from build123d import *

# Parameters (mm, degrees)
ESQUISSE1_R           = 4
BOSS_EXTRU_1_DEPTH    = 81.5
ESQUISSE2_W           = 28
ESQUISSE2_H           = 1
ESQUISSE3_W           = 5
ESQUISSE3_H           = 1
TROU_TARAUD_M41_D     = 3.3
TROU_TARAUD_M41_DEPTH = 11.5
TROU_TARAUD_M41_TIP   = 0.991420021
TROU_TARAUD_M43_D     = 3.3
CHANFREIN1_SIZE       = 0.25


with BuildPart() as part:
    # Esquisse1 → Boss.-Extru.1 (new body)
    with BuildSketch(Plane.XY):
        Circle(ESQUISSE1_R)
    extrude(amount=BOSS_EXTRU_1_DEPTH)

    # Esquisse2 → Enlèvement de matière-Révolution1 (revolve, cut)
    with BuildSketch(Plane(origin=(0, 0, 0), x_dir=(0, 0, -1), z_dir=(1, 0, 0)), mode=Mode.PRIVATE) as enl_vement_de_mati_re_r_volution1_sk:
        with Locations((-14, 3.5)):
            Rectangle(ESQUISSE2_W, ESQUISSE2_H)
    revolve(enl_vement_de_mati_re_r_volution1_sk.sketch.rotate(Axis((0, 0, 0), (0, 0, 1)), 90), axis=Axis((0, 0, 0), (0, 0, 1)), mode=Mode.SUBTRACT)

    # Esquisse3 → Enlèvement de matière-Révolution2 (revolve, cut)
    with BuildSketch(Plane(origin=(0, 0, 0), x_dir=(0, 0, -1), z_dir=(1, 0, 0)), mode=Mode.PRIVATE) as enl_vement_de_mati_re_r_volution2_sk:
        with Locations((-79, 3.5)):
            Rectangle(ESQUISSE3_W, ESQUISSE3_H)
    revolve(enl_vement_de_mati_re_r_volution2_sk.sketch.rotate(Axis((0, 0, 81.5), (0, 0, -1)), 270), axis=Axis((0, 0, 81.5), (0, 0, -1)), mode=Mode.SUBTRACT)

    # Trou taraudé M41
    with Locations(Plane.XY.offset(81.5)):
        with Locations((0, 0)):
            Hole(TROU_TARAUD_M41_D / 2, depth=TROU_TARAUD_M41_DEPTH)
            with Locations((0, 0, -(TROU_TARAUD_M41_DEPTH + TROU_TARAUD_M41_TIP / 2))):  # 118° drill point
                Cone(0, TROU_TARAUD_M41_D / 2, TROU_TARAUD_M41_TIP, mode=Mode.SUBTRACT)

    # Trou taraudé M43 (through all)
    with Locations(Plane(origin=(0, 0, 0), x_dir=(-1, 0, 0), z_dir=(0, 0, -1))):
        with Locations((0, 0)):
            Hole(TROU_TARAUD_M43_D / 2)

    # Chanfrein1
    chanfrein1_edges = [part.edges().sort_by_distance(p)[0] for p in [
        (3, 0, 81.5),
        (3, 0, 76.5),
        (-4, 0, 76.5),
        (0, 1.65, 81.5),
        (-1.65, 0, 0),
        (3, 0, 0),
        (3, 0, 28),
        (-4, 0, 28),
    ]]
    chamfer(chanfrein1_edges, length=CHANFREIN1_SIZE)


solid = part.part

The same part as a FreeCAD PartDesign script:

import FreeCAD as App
import Part
import Sketcher

V = App.Vector
Q = App.Units.Quantity


def edges_at(feature, points):
    """Names of the edges that pass closest to the given points."""
    edges = feature.Shape.Edges
    near = lambda p: min(range(len(edges)), key=lambda i: edges[i].distToShape(Part.Vertex(*p))[0])
    return sorted({f"Edge{near(p) + 1}" for p in points})


def add_polygon(sketch, points):
    """Adds a closed chain of lines whose ends are joined by coincident constraints."""
    first, n = sketch.GeometryCount, len(points)
    for a, b in zip(points, points[1:] + points[:1]):
        sketch.addGeometry(Part.LineSegment(App.Vector(*a, 0), App.Vector(*b, 0)), False)
    for i in range(n):
        sketch.addConstraint(Sketcher.Constraint("Coincident", first + i, 2, first + (i + 1) % n, 1))

doc = App.newDocument("Part")
body = doc.addObject("PartDesign::Body", "Body")

# Sketch on XY plane
sketch1 = body.newObject("Sketcher::SketchObject", "Sketch")
sketch1.AttachmentSupport = (doc.getObject("XY_Plane"), [""])
sketch1.MapMode = "FlatFace"
sketch1.addGeometry(Part.Circle(V(0, 0, 0), V(0, 0, 1), 4), False)
sketch1.addConstraint([
    Sketcher.Constraint("Coincident", 0, 3, -1, 1),
    Sketcher.Constraint("Diameter", 0, Q("8 mm")),
])
pad1 = body.newObject("PartDesign::Pad", "Pad")
pad1.Profile = sketch1
pad1.Length = 81.5

# Sketch on YZ plane
sketch2 = body.newObject("Sketcher::SketchObject", "Sketch001")
sketch2.AttachmentSupport = (doc.getObject("YZ_Plane"), [""])
sketch2.MapMode = "FlatFace"
add_polygon(sketch2, [(4, 28), (3, 28), (3, 0), (4, 0)])  # lines 0-3
sketch2.addConstraint([
    Sketcher.Constraint("Horizontal", 0),
    Sketcher.Constraint("Vertical", 1),
    Sketcher.Constraint("Horizontal", 2),
    Sketcher.Constraint("Vertical", 3),
    Sketcher.Constraint("PointOnObject", 1, 2, -1),
    Sketcher.Constraint("DistanceX", 0, 2, 0, 1, Q("1 mm")),
    Sketcher.Constraint("DistanceY", 1, 2, 1, 1, Q("28 mm")),
    Sketcher.Constraint("DistanceX", -1, 1, 0, 2, Q("3 mm")),
])
groove = body.newObject("PartDesign::Groove", "Groove")
groove.Profile = sketch2
groove.ReferenceAxis = (sketch2, ["V_Axis"])
groove.Angle = 360

# Sketch on YZ plane
sketch3 = body.newObject("Sketcher::SketchObject", "Sketch002")
sketch3.AttachmentSupport = (doc.getObject("YZ_Plane"), [""])
sketch3.MapMode = "FlatFace"
add_polygon(sketch3, [(4, 81.5), (3, 81.5), (3, 76.5), (4, 76.5)])  # lines 0-3
sketch3.addConstraint([
    Sketcher.Constraint("Horizontal", 0),
    Sketcher.Constraint("Vertical", 1),
    Sketcher.Constraint("Horizontal", 2),
    Sketcher.Constraint("Vertical", 3),
    Sketcher.Constraint("DistanceX", 0, 2, 0, 1, Q("1 mm")),
    Sketcher.Constraint("DistanceY", 1, 2, 1, 1, Q("5 mm")),
    Sketcher.Constraint("DistanceX", -1, 1, 0, 2, Q("3 mm")),
    Sketcher.Constraint("DistanceY", -1, 1, 0, 2, Q("81.5 mm")),
])
groove2 = body.newObject("PartDesign::Groove", "Groove001")
groove2.Profile = sketch3
groove2.ReferenceAxis = (sketch3, ["V_Axis"])
groove2.Angle = 360

# Sketch on XY plane
sketch4 = body.newObject("Sketcher::SketchObject", "Sketch003")
sketch4.AttachmentSupport = (doc.getObject("XY_Plane"), [""])
sketch4.MapMode = "FlatFace"
sketch4.AttachmentOffset = App.Placement(V(0, 0, 81.5), App.Rotation())
sketch4.addGeometry(Part.Circle(V(0, 0, 0), V(0, 0, 1), 1.6), False)
sketch4.addConstraint([
    Sketcher.Constraint("Coincident", 0, 3, -1, 1),
    Sketcher.Constraint("Diameter", 0, Q("3.3 mm")),
])
doc.recompute()
hole = body.newObject("PartDesign::Hole", "Hole")
hole.Profile = sketch4
hole.ThreadType = "None"
hole.Diameter = 3.3
hole.DepthType = "Dimension"
hole.Depth = 11.5
hole.DrillPoint = "Angled"
hole.DrillPointAngle = 118

# Sketch on XY plane
sketch5 = body.newObject("Sketcher::SketchObject", "Sketch004")
sketch5.AttachmentSupport = (doc.getObject("XY_Plane"), [""])
sketch5.MapMode = "FlatFace"
sketch5.addGeometry(Part.Circle(V(0, 0, 0), V(0, 0, 1), 1.6), False)
sketch5.addConstraint([
    Sketcher.Constraint("Coincident", 0, 3, -1, 1),
    Sketcher.Constraint("Diameter", 0, Q("3.3 mm")),
])
doc.recompute()
hole2 = body.newObject("PartDesign::Hole", "Hole001")
hole2.Profile = sketch5
hole2.ThreadType = "None"
hole2.Diameter = 3.3
hole2.DepthType = "ThroughAll"
hole2.Reversed = True
doc.recompute()

chamfer = body.newObject("PartDesign::Chamfer", "Chamfer")
chamfer.Base = (hole2, edges_at(hole2, [
    (3, 0, 81.5),
    (3, 0, 76.5),
    (-4, 0, 76.5),
    (0, 1.65, 81.5),
    (-1.65, 0, 0),
    (3, 0, 0),
    (3, 0, 28),
    (-4, 0, 28),
]))
chamfer.Size = 0.25

doc.recompute()
